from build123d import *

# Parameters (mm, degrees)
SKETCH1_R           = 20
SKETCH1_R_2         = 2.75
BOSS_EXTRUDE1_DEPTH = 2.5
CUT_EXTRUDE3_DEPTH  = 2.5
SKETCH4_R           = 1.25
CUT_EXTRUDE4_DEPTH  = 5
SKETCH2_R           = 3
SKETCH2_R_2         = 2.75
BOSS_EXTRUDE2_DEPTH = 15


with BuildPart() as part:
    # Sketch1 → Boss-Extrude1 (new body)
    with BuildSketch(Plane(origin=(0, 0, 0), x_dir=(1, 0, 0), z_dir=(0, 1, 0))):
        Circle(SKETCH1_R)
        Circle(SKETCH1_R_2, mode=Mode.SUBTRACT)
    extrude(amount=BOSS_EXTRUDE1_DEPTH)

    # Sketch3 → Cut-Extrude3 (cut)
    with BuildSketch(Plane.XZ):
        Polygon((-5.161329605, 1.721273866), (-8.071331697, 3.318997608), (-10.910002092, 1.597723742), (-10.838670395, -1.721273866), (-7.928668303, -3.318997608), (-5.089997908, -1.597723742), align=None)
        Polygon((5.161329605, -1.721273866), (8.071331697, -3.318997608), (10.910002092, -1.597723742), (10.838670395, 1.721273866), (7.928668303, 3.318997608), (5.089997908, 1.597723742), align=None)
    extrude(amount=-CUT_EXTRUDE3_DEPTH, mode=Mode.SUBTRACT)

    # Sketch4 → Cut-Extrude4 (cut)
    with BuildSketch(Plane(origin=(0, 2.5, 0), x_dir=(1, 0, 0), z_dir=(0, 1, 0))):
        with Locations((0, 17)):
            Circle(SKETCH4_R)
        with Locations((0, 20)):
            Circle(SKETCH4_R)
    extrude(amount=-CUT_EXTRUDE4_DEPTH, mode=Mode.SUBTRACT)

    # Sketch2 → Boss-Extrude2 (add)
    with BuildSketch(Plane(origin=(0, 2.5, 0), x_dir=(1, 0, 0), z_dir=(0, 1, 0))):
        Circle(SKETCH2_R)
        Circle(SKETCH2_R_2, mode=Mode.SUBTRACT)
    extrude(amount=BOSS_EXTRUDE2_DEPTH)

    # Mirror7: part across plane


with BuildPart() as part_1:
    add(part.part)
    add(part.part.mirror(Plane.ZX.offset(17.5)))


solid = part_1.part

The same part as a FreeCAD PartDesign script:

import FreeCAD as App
import Part
import Sketcher
from FreeCAD import Vector
Q = App.Units.Quantity


def add_polygon(sketch, points):
    """Adds a closed chain of lines whose ends are joined by coincident constraints."""
    first, n = sketch.GeometryCount, len(points)
    for a, b in zip(points, points[1:] + points[:1]):
        sketch.addGeometry(Part.LineSegment(App.Vector(*a, 0), App.Vector(*b, 0)), False)
    for i in range(n):
        sketch.addConstraint(Sketcher.Constraint("Coincident", first + i, 2, first + (i + 1) % n, 1))

doc = App.newDocument("Part")
body = doc.addObject("PartDesign::Body", "Body")

sketch1 = body.newObject("Sketcher::SketchObject", "Sketch")
sketch1.AttachmentSupport = (doc.getObject("XZ_Plane"), [""])
sketch1.MapMode = "FlatFace"
sketch1.addGeometry([
    Part.Circle(Vector(0, 0, 0), Vector(0, 0, 1), 20),
    Part.Circle(Vector(0, 0, 0), Vector(0, 0, 1), 2.8),
], False)
sketch1.addConstraint([
    Sketcher.Constraint("Coincident", 0, 3, -1, 1),
    Sketcher.Constraint("Coincident", 1, 3, -1, 1),
    Sketcher.Constraint("Diameter", 0, Q("40 mm")),
    Sketcher.Constraint("Diameter", 1, Q("5.5 mm")),
])
pad1 = body.newObject("PartDesign::Pad", "Pad")
pad1.Profile = sketch1
pad1.Length = 2.5
pad1.Reversed = True

sketch2 = body.newObject("Sketcher::SketchObject", "Sketch001")
sketch2.AttachmentSupport = (doc.getObject("XZ_Plane"), [""])
sketch2.MapMode = "FlatFace"
add_polygon(sketch2, [(-5.2, 1.7), (-8.1, 3.3), (-10.9, 1.6), (-10.8, -1.7), (-7.9, -3.3), (-5.1, -1.6)])
add_polygon(sketch2, [(5.2, -1.7), (8.1, -3.3), (10.9, -1.6), (10.8, 1.7), (7.9, 3.3), (5.1, 1.6)])
sketch2.addConstraint([
    Sketcher.Constraint("Symmetric", 0, 2, 6, 2, -1, 1),
    Sketcher.Constraint("Symmetric", 1, 2, 7, 2, -1, 1),
    Sketcher.Constraint("Symmetric", 2, 2, 8, 2, -1, 1),
    Sketcher.Constraint("Symmetric", 3, 2, 9, 2, -1, 1),
    Sketcher.Constraint("Symmetric", 4, 2, 10, 2, -1, 1),
    Sketcher.Constraint("Symmetric", 5, 2, 11, 2, -1, 1),
    Sketcher.Constraint("Parallel", 0, 3),
    Sketcher.Constraint("Parallel", 1, 4),
    Sketcher.Constraint("Parallel", 2, 5),
    Sketcher.Constraint("Horizontal", 3, 2, 6, 2),
    Sketcher.Constraint("Horizontal", 4, 2, 7, 2),
    Sketcher.Constraint("Equal", 0, 1),
    Sketcher.Constraint("Equal", 1, 2),
    Sketcher.Constraint("DistanceX", 3, 2, 6, 2, Q("16 mm")),
    Sketcher.Constraint("DistanceX", 0, 2, -1, 1, Q("8.071332 mm")),
    Sketcher.Constraint("DistanceX", 2, 2, -1, 1, Q("10.83867 mm")),
    Sketcher.Constraint("DistanceX", 1, 2, 0, 2, Q("2.83867 mm")),
    Sketcher.Constraint("DistanceY", 2, 2, 0, 2, Q("5.040271 mm")),
])
pocket1 = body.newObject("PartDesign::Pocket", "Pocket")
pocket1.Profile = sketch2
pocket1.Length = 2.5

sketch3 = body.newObject("Sketcher::SketchObject", "Sketch002")
sketch3.AttachmentSupport = (doc.getObject("XZ_Plane"), [""])
sketch3.MapMode = "FlatFace"
sketch3.AttachmentOffset = App.Placement(Vector(0, 0, -2.5), App.Rotation())
sketch3.addGeometry([
    Part.Circle(Vector(0, -17, 0), Vector(0, 0, 1), 1.2),
    Part.Circle(Vector(0, -20, 0), Vector(0, 0, 1), 1.2),
], False)
sketch3.addConstraint([
    Sketcher.Constraint("Equal", 0, 1),
    Sketcher.Constraint("PointOnObject", 0, 3, -2),
    Sketcher.Constraint("PointOnObject", 1, 3, -2),
    Sketcher.Constraint("Diameter", 0, Q("2.5 mm")),
    Sketcher.Constraint("DistanceY", 0, 3, -1, 1, Q("17 mm")),
    Sketcher.Constraint("DistanceY", 1, 3, -1, 1, Q("20 mm")),
])
pocket2 = body.newObject("PartDesign::Pocket", "Pocket001")
pocket2.Profile = sketch3
pocket2.Length = 5
pocket2.Reversed = True

sketch4 = body.newObject("Sketcher::SketchObject", "Sketch003")
sketch4.AttachmentSupport = (doc.getObject("XZ_Plane"), [""])
sketch4.MapMode = "FlatFace"
sketch4.AttachmentOffset = App.Placement(Vector(0, 0, -2.5), App.Rotation())
sketch4.addGeometry([
    Part.Circle(Vector(0, 0, 0), Vector(0, 0, 1), 3),
    Part.Circle(Vector(0, 0, 0), Vector(0, 0, 1), 2.8),
], False)
sketch4.addConstraint([
    Sketcher.Constraint("Coincident", 0, 3, -1, 1),
    Sketcher.Constraint("Coincident", 1, 3, -1, 1),
    Sketcher.Constraint("Diameter", 0, Q("6 mm")),
    Sketcher.Constraint("Diameter", 1, Q("5.5 mm")),
])
pad2 = body.newObject("PartDesign::Pad", "Pad001")
pad2.Profile = sketch4
pad2.Length = 15
pad2.Reversed = True
body2 = doc.addObject("PartDesign::Body", "Body001")
doc.recompute()

body2.BaseFeature = body
doc.recompute()

mirroring = doc.addObject("Part::Mirroring", "Mirroring")
mirroring.Source = body
mirroring.Base = Vector(0, 17.5, 0)
mirroring.Normal = Vector(0, 1, 0)
body3 = doc.addObject("PartDesign::Body", "Body002")
body3.BaseFeature = mirroring
boolean = body2.newObject("PartDesign::Boolean", "Boolean")
boolean.Type = "Fuse"
boolean.addObjects([body3])
doc.recompute()
mirroring.Visibility = False

doc.recompute()
